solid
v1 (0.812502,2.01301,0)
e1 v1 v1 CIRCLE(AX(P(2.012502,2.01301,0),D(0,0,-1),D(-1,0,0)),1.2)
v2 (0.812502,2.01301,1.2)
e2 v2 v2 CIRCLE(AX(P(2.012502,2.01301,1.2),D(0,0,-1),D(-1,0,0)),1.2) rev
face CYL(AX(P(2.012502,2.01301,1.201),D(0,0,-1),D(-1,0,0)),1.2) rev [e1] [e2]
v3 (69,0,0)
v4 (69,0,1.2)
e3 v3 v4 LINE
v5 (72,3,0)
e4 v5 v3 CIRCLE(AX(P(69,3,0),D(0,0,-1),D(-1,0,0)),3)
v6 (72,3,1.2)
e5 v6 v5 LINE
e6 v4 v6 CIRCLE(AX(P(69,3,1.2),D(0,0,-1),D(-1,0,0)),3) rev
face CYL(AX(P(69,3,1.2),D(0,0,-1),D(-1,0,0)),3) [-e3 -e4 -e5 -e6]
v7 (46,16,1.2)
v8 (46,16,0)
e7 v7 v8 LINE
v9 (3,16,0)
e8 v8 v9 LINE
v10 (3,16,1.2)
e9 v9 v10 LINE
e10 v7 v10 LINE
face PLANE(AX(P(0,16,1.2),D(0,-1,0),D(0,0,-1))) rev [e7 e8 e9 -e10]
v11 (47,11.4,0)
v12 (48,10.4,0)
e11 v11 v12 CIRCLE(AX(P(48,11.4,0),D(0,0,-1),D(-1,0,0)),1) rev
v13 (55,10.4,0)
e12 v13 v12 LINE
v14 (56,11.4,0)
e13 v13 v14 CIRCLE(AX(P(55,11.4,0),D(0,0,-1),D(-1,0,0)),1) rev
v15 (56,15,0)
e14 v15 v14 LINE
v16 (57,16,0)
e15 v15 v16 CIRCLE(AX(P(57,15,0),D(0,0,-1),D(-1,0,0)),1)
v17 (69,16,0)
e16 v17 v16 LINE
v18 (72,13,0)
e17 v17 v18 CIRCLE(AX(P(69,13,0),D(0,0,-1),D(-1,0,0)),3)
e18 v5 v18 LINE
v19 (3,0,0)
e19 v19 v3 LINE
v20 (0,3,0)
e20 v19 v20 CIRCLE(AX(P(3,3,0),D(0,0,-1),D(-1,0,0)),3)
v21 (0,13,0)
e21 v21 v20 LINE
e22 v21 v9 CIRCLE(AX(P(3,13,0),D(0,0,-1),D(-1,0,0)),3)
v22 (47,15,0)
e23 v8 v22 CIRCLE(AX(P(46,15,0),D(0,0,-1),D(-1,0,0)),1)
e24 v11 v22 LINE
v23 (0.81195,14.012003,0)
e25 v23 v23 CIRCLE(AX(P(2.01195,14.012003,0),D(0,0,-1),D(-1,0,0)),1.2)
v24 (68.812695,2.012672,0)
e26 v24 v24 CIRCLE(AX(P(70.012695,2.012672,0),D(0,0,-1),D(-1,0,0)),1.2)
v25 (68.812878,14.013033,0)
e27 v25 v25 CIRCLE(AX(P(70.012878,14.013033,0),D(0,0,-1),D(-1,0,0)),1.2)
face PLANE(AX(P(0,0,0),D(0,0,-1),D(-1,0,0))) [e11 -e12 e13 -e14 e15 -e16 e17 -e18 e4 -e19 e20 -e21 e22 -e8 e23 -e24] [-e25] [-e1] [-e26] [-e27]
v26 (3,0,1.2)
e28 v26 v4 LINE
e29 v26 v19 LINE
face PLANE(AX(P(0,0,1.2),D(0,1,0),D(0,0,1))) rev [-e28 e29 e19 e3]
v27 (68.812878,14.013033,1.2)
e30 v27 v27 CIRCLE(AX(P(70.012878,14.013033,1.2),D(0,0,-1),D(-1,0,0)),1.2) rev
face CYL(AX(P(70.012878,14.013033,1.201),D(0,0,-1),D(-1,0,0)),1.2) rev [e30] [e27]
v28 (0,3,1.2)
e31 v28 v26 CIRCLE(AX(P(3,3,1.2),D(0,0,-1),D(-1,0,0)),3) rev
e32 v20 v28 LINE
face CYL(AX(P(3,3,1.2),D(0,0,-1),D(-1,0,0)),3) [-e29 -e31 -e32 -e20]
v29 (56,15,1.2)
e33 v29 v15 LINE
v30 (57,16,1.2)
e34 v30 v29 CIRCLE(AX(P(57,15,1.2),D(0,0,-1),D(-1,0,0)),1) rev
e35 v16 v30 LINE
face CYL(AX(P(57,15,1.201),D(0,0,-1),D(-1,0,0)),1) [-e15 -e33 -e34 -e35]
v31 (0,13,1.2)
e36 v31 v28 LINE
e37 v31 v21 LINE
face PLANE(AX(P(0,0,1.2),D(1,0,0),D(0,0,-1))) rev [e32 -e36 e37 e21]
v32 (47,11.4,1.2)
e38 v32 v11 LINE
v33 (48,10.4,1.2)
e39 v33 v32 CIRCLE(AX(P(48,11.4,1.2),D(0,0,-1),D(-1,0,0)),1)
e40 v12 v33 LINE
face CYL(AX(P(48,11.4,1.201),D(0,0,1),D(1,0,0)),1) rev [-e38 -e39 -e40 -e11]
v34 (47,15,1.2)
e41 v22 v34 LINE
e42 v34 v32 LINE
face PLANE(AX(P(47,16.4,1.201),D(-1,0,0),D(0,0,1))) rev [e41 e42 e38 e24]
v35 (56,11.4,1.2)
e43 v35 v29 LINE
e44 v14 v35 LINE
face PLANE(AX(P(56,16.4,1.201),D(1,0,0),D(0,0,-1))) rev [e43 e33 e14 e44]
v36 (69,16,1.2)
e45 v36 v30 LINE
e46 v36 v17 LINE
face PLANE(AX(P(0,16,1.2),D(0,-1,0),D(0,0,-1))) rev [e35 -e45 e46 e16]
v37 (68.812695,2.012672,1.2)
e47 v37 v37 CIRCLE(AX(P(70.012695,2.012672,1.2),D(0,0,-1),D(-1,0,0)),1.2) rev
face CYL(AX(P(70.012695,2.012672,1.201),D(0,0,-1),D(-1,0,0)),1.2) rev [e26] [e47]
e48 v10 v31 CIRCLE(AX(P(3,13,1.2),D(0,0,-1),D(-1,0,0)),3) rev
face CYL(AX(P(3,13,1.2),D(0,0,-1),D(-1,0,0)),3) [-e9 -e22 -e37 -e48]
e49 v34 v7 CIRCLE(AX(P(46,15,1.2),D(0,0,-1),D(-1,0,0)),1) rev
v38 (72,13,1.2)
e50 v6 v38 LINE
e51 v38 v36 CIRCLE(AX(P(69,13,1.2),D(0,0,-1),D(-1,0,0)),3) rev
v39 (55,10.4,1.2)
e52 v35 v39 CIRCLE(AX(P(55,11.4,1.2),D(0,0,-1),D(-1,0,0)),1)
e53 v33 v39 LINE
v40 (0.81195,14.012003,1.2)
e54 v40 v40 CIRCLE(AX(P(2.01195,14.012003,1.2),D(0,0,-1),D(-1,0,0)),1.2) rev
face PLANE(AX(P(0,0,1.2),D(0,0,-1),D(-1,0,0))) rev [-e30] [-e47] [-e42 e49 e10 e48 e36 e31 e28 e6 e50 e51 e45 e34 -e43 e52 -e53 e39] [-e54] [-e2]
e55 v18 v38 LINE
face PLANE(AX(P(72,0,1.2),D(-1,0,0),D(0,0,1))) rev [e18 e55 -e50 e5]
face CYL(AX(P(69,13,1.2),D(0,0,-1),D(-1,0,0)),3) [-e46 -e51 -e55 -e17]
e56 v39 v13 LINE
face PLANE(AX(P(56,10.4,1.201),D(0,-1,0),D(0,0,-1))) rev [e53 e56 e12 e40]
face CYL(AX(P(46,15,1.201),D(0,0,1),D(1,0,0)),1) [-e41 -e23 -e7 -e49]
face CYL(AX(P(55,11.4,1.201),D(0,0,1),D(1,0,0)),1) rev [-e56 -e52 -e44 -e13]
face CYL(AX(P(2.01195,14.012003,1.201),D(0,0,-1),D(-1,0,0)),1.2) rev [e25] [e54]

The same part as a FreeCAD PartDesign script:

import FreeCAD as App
import Part
import Sketcher
Q = App.Units.Quantity


def edges_at(feature, points):
    """Names of the edges that pass closest to the given points."""
    edges = feature.Shape.Edges
    near = lambda p: min(range(len(edges)), key=lambda i: edges[i].distToShape(Part.Vertex(*p))[0])
    return sorted({f"Edge{near(p) + 1}" for p in points})


def add_polygon(sketch, points):
    """Adds a closed chain of lines whose ends are joined by coincident constraints."""
    first, n = sketch.GeometryCount, len(points)
    for a, b in zip(points, points[1:] + points[:1]):
        sketch.addGeometry(Part.LineSegment(App.Vector(*a, 0), App.Vector(*b, 0)), False)
    for i in range(n):
        sketch.addConstraint(Sketcher.Constraint("Coincident", first + i, 2, first + (i + 1) % n, 1))

doc = App.newDocument("Part")
body = doc.addObject("PartDesign::Body", "Body")

# Sketch on XY plane
sketch1 = body.newObject("Sketcher::SketchObject", "Sketch")
sketch1.AttachmentSupport = (doc.getObject("XY_Plane"), [""])
sketch1.MapMode = "FlatFace"
add_polygon(sketch1, [(0, 16), (0, 0), (72, 0), (72, 16)])  # lines 0-3
sketch1.addConstraint([
    Sketcher.Constraint("Vertical", 0),
    Sketcher.Constraint("Horizontal", 1),
    Sketcher.Constraint("Vertical", 2),
    Sketcher.Constraint("Horizontal", 3),
    Sketcher.Constraint("Coincident", 0, 2, -1, 1),
    Sketcher.Constraint("DistanceX", 1, 1, 1, 2, Q("72 mm")),
    Sketcher.Constraint("DistanceY", 0, 2, 0, 1, Q("16 mm")),
])
pad1 = body.newObject("PartDesign::Pad", "Pad")
pad1.Profile = sketch1
pad1.Length = 1.2
doc.recompute()

fillet = body.newObject("PartDesign::Fillet", "Fillet")
fillet.Base = (pad1, edges_at(pad1, [
    (0, 16, 0.6),
    (72, 16, 0.6),
    (72, 0, 0.6),
    (0, 0, 0.6),
]))
fillet.Radius = 3

# Sketch on XY plane
sketch2 = body.newObject("Sketcher::SketchObject", "Sketch001")
sketch2.AttachmentSupport = (doc.getObject("XY_Plane"), [""])
sketch2.MapMode = "FlatFace"
sketch2.addGeometry(Part.Circle(App.Vector(70.012878, 14.013033, 0), App.Vector(0, 0, 1), 1.2), False)
sketch2.addConstraint([
    Sketcher.Constraint("Diameter", 0, Q("2.4 mm")),
    Sketcher.Constraint("DistanceX", -1, 1, 0, 3, Q("70.012878 mm")),
    Sketcher.Constraint("DistanceY", -1, 1, 0, 3, Q("14.013033 mm")),
])
pocket1 = body.newObject("PartDesign::Pocket", "Pocket")
pocket1.Profile = sketch2
pocket1.Type = "UpToFirst"
pocket1.Reversed = True

# Sketch on XY plane
sketch3 = body.newObject("Sketcher::SketchObject", "Sketch002")
sketch3.AttachmentSupport = (doc.getObject("XY_Plane"), [""])
sketch3.MapMode = "FlatFace"
sketch3.addGeometry(Part.Circle(App.Vector(70.012695, 2.012672, 0), App.Vector(0, 0, 1), 1.2), False)
sketch3.addConstraint([
    Sketcher.Constraint("Diameter", 0, Q("2.4 mm")),
    Sketcher.Constraint("DistanceX", -1, 1, 0, 3, Q("70.012695 mm")),
    Sketcher.Constraint("DistanceY", -1, 1, 0, 3, Q("2.012672 mm")),
])
pocket2 = body.newObject("PartDesign::Pocket", "Pocket001")
pocket2.Profile = sketch3
pocket2.Type = "UpToFirst"
pocket2.Reversed = True

# Sketch on XY plane
sketch4 = body.newObject("Sketcher::SketchObject", "Sketch003")
sketch4.AttachmentSupport = (doc.getObject("XY_Plane"), [""])
sketch4.MapMode = "FlatFace"
sketch4.addGeometry(Part.Circle(App.Vector(2.01195, 14.012003, 0), App.Vector(0, 0, 1), 1.2), False)
sketch4.addConstraint([
    Sketcher.Constraint("Diameter", 0, Q("2.4 mm")),
    Sketcher.Constraint("DistanceX", -1, 1, 0, 3, Q("2.01195 mm")),
    Sketcher.Constraint("DistanceY", -1, 1, 0, 3, Q("14.012003 mm")),
])
pocket3 = body.newObject("PartDesign::Pocket", "Pocket002")
pocket3.Profile = sketch4
pocket3.Type = "UpToFirst"
pocket3.Reversed = True

# Sketch on XY plane
sketch5 = body.newObject("Sketcher::SketchObject", "Sketch004")
sketch5.AttachmentSupport = (doc.getObject("XY_Plane"), [""])
sketch5.MapMode = "FlatFace"
sketch5.addGeometry(Part.Circle(App.Vector(2.012502, 2.01301, 0), App.Vector(0, 0, 1), 1.2), False)
sketch5.addConstraint([
    Sketcher.Constraint("Diameter", 0, Q("2.4 mm")),
    Sketcher.Constraint("DistanceX", -1, 1, 0, 3, Q("2.012502 mm")),
    Sketcher.Constraint("DistanceY", -1, 1, 0, 3, Q("2.01301 mm")),
])
pocket4 = body.newObject("PartDesign::Pocket", "Pocket003")
pocket4.Profile = sketch5
pocket4.Type = "UpToFirst"
pocket4.Reversed = True

# Sketch on XY plane
sketch6 = body.newObject("Sketcher::SketchObject", "Sketch005")
sketch6.AttachmentSupport = (doc.getObject("XY_Plane"), [""])
sketch6.MapMode = "FlatFace"
add_polygon(sketch6, [(56, 16.4), (56, 10.4), (47, 10.4), (47, 16.4)])  # lines 0-3
sketch6.addConstraint([
    Sketcher.Constraint("Vertical", 0),
    Sketcher.Constraint("Horizontal", 1),
    Sketcher.Constraint("Vertical", 2),
    Sketcher.Constraint("Horizontal", 3),
    Sketcher.Constraint("DistanceX", 1, 2, 1, 1, Q("9 mm")),
    Sketcher.Constraint("DistanceY", 0, 2, 0, 1, Q("6 mm")),
    Sketcher.Constraint("DistanceX", -1, 1, 0, 2, Q("56 mm")),
    Sketcher.Constraint("DistanceY", -1, 1, 0, 2, Q("10.4 mm")),
])
pocket5 = body.newObject("PartDesign::Pocket", "Pocket004")
pocket5.Profile = sketch6
pocket5.Type = "UpToFirst"
pocket5.Reversed = True
doc.recompute()

fillet2 = body.newObject("PartDesign::Fillet", "Fillet001")
fillet2.Base = (pocket5, edges_at(pocket5, [
    (56, 16, 0.6),
    (47, 16, 0.6),
    (56, 10.4, 0.6),
    (47, 10.4, 0.6),
]))
fillet2.Radius = 1

doc.recompute()
